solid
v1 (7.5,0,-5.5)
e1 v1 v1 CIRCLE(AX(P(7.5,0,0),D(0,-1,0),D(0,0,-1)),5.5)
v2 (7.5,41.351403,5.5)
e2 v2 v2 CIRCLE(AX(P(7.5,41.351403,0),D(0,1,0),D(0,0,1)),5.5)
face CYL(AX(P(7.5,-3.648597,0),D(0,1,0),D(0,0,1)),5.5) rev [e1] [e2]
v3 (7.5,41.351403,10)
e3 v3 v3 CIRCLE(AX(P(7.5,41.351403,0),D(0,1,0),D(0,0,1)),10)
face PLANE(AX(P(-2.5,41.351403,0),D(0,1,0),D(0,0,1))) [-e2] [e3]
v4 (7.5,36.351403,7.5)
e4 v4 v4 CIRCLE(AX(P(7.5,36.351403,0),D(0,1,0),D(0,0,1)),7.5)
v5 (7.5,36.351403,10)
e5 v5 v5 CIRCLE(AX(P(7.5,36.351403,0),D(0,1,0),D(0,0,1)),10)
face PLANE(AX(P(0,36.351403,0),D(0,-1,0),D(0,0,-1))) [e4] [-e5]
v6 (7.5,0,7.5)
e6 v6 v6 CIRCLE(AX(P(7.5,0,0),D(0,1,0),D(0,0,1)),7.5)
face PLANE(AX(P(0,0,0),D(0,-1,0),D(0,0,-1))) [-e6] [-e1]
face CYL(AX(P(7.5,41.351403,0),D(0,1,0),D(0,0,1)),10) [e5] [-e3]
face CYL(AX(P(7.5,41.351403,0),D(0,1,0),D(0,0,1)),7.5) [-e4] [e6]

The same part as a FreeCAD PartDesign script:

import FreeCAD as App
import Part
import Sketcher

V = App.Vector
Q = App.Units.Quantity


def add_polygon(sketch, points):
    """Adds a closed chain of lines whose ends are joined by coincident constraints."""
    first, n = sketch.GeometryCount, len(points)
    for a, b in zip(points, points[1:] + points[:1]):
        sketch.addGeometry(Part.LineSegment(App.Vector(*a, 0), App.Vector(*b, 0)), False)
    for i in range(n):
        sketch.addConstraint(Sketcher.Constraint("Coincident", first + i, 2, first + (i + 1) % n, 1))

doc = App.newDocument("Part")
params = doc.addObject("Spreadsheet::Sheet", "Params")
for row, (alias, value) in enumerate([
    ("sketch1_width", "10 mm"),
    ("sketch1_height", "5 mm"),
    ("sketch1_width2", "7.5 mm"),
    ("revolution_angle", "360 deg"),
    ("sketch2_diameter", "11 mm"),
    ("pocket1_length", "45 mm"),
], start=1):
    params.set(f"A{row}", alias)
    params.set(f"B{row}", "=" + value)
    params.setAlias(f"B{row}", alias)

body = doc.addObject("PartDesign::Body", "Body")

# Sketch on XY plane
sketch1 = body.newObject("Sketcher::SketchObject", "Sketch")
sketch1.AttachmentSupport = (doc.getObject("XY_Plane"), [""])
sketch1.MapMode = "FlatFace"
add_polygon(sketch1, [(0, 36.4), (0, 0), (7.5, 0), (7.5, 41.4), (-2.5, 41.4), (-2.5, 36.4)])  # lines 0-5
sketch1.addGeometry(Part.LineSegment(V(7.5, 41.4, 0), V(7.5, 0, 0)), True)  # axis
sketch1.addConstraint([
    Sketcher.Constraint("Vertical", 0),
    Sketcher.Constraint("Horizontal", 1),
    Sketcher.Constraint("Vertical", 2),
    Sketcher.Constraint("Horizontal", 3),
    Sketcher.Constraint("Vertical", 4),
    Sketcher.Constraint("Horizontal", 5),
    Sketcher.Constraint("Vertical", 6),
    Sketcher.Constraint("Coincident", 0, 2, -1, 1),
    Sketcher.Constraint("Coincident", 6, 1, 2, 2),
    Sketcher.Constraint("PointOnObject", 6, 2, -1),
    Sketcher.Constraint("DistanceX", 3, 2, 3, 1, Q("10 mm")),
    Sketcher.Constraint("DistanceY", 4, 2, 4, 1, Q("5 mm")),
    Sketcher.Constraint("DistanceX", 1, 1, 1, 2, Q("7.5 mm")),
    Sketcher.Constraint("DistanceY", 0, 2, 0, 1, Q("36.351403 mm")),
])
sketch1.setExpression("Constraints[16]", "Params.sketch1_width")
sketch1.setExpression("Constraints[17]", "Params.sketch1_height")
sketch1.setExpression("Constraints[18]", "Params.sketch1_width2")
revolution = body.newObject("PartDesign::Revolution", "Revolution")
revolution.Profile = sketch1
revolution.ReferenceAxis = (sketch1, ["Axis0"])
revolution.setExpression("Angle", "Params.revolution_angle")

# Sketch on XZ plane
sketch2 = body.newObject("Sketcher::SketchObject", "Sketch001")
sketch2.AttachmentSupport = (doc.getObject("XZ_Plane"), [""])
sketch2.MapMode = "FlatFace"
sketch2.AttachmentOffset = App.Placement(V(0, 0, -41.351403), App.Rotation())
sketch2.addGeometry(Part.Circle(V(8, 0, 0), V(0, 0, 1), 6), False)
sketch2.addConstraint([
    Sketcher.Constraint("PointOnObject", 0, 3, -1),
    Sketcher.Constraint("Diameter", 0, Q("11 mm")),
    Sketcher.Constraint("DistanceX", -1, 1, 0, 3, Q("7.5 mm")),
])
sketch2.setExpression("Constraints[1]", "Params.sketch2_diameter")
pocket1 = body.newObject("PartDesign::Pocket", "Pocket")
pocket1.Profile = sketch2
pocket1.setExpression("Length", "Params.pocket1_length")
pocket1.Reversed = True

doc.recompute()
